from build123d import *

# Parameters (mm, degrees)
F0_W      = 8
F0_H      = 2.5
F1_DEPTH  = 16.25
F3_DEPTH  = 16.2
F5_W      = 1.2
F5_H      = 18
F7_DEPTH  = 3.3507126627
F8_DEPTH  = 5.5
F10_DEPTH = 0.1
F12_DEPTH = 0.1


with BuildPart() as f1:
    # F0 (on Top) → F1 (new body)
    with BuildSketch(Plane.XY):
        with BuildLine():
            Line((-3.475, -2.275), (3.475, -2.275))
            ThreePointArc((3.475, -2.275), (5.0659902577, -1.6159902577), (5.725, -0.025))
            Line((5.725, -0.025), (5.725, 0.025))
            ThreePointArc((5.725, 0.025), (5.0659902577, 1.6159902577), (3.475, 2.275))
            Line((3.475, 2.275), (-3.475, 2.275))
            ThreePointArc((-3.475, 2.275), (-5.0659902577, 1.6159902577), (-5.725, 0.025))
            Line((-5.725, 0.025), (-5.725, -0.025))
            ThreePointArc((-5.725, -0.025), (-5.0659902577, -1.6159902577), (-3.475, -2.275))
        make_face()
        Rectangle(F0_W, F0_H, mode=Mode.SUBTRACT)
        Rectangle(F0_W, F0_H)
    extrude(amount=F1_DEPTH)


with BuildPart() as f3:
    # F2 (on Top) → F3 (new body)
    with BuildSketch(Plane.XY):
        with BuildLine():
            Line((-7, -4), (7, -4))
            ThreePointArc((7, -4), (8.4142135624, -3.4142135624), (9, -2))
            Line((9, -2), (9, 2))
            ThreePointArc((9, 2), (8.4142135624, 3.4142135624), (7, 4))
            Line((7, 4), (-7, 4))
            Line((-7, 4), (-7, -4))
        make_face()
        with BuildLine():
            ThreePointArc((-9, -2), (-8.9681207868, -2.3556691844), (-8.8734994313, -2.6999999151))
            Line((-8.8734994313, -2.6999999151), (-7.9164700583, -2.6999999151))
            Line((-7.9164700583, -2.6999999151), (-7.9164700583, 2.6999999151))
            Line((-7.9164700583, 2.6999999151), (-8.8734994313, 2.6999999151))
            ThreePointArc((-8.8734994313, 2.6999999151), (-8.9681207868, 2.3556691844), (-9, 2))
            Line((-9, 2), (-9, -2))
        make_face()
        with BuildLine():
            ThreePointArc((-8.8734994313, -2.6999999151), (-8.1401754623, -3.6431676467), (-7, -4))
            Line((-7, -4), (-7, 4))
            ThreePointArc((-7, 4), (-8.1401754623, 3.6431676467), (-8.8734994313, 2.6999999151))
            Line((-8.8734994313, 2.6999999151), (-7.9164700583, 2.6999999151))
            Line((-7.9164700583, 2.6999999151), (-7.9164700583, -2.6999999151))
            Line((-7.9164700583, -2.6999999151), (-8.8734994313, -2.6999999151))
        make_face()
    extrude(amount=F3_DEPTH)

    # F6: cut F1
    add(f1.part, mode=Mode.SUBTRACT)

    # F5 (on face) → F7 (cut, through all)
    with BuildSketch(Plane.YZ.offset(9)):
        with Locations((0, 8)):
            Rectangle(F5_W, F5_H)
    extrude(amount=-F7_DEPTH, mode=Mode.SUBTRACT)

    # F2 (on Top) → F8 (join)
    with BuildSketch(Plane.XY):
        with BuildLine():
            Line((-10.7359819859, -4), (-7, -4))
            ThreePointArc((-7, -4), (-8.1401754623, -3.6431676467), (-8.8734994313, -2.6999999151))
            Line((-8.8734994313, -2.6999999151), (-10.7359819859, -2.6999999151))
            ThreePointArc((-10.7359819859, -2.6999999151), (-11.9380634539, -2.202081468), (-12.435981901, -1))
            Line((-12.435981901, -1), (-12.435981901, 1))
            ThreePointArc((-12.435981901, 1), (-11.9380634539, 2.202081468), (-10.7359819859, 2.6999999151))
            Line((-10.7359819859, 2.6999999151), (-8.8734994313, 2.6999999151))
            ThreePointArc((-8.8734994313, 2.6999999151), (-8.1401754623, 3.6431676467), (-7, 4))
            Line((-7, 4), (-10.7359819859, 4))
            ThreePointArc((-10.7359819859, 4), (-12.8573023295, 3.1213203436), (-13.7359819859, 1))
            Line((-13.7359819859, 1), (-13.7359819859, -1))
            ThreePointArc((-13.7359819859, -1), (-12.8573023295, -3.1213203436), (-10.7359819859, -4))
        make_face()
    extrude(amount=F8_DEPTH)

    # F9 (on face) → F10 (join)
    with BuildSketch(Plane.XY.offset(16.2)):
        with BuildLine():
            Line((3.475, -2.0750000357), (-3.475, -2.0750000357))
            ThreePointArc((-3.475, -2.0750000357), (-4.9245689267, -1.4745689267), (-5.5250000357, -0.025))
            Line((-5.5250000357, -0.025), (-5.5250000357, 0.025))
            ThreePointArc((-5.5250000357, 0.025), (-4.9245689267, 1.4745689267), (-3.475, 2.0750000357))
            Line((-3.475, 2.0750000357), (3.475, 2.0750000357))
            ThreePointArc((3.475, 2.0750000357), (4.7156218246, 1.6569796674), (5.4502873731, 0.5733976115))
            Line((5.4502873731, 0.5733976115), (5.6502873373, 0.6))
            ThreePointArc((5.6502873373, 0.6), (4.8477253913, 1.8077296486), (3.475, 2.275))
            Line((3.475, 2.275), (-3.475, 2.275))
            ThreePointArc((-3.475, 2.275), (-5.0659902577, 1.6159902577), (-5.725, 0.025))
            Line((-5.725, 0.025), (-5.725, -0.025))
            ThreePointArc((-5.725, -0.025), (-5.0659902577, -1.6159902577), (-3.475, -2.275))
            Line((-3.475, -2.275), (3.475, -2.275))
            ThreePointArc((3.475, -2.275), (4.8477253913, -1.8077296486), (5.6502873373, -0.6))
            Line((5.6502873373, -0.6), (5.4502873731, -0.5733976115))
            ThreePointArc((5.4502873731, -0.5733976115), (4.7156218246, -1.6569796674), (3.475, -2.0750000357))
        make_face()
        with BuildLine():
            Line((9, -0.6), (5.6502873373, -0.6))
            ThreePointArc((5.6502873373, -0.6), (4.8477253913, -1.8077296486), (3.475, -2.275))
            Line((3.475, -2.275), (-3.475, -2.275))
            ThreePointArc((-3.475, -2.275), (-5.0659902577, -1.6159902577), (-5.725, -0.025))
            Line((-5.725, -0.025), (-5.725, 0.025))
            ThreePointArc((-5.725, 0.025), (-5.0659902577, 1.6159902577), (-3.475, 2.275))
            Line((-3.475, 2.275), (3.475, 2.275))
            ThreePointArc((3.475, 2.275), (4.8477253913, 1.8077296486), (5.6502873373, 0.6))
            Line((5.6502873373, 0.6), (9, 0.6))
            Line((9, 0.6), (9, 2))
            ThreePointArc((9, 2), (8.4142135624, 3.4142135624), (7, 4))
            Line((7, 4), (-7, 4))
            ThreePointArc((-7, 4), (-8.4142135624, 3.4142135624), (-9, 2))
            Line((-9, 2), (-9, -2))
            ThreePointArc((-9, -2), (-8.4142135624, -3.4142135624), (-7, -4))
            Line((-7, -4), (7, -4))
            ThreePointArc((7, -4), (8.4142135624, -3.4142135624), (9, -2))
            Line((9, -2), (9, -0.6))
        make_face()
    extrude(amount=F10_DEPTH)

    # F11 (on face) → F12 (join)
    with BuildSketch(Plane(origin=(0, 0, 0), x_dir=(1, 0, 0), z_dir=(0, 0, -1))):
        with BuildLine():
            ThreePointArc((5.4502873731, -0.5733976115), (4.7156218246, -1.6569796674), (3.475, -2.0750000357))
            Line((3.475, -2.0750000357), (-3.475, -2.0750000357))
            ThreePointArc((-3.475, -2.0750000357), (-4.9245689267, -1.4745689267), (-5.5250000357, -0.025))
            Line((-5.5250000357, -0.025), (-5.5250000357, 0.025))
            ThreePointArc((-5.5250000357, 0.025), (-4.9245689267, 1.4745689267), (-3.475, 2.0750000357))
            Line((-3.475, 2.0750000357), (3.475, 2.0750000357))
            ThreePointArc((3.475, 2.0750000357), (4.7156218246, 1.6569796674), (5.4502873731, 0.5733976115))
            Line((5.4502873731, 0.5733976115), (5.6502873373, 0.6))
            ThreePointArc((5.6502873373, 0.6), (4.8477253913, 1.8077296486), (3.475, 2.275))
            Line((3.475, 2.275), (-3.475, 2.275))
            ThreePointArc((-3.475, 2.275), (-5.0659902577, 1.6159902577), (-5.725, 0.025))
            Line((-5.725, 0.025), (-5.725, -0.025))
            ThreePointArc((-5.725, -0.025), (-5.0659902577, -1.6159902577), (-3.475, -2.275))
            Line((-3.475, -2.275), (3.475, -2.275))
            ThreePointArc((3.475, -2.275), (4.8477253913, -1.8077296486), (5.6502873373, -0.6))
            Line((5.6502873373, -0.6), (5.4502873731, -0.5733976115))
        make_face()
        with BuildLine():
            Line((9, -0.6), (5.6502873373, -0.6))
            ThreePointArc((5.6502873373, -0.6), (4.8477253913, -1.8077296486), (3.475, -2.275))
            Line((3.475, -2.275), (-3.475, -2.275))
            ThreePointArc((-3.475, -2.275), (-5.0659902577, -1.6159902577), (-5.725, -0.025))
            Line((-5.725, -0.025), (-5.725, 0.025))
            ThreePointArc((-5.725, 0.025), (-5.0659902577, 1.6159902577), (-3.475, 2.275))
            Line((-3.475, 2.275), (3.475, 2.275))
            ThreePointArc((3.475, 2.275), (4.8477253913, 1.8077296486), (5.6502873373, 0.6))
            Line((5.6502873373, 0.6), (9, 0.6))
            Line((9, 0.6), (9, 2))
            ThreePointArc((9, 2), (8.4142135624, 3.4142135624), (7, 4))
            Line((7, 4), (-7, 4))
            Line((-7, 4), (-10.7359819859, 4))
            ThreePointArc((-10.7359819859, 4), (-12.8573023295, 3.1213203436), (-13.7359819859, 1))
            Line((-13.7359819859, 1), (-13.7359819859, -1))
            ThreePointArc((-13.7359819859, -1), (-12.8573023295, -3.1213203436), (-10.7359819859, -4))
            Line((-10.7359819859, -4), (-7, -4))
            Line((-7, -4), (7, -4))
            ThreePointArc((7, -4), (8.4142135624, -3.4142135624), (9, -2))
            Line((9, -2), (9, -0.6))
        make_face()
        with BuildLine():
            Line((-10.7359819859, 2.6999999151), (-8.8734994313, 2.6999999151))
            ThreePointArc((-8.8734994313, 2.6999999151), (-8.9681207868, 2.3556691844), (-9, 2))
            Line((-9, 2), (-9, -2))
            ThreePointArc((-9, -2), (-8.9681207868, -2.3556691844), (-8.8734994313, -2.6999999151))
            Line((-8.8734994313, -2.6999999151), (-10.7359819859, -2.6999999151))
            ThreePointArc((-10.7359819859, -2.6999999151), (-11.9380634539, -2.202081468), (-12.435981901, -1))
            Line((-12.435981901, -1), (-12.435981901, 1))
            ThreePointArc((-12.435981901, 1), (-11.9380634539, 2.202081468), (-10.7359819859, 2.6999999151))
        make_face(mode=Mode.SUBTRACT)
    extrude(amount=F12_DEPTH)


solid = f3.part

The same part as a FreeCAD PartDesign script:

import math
import FreeCAD as App
import Part
import Sketcher

V = App.Vector

doc = App.newDocument("Part")
body = doc.addObject("PartDesign::Body", "Body")

sketch1 = body.newObject("Sketcher::SketchObject", "Sketch")
sketch1.AttachmentSupport = (doc.getObject("XY_Plane"), [""])
sketch1.MapMode = "FlatFace"
sketch1.addGeometry([
    Part.LineSegment(V(-3.475, -2.275, 0), V(3.475, -2.275, 0)),
    Part.ArcOfCircle(Part.Circle(V(3.475, -0.025, 0), V(0, 0, 1), 2.25), math.radians(-90), math.radians(0)),
    Part.LineSegment(V(5.725, -0.025, 0), V(5.725, 0.025, 0)),
    Part.ArcOfCircle(Part.Circle(V(3.475, 0.025, 0), V(0, 0, 1), 2.25), math.radians(0), math.radians(90)),
    Part.LineSegment(V(3.475, 2.275, 0), V(-3.475, 2.275, 0)),
    Part.ArcOfCircle(Part.Circle(V(-3.475, 0.025, 0), V(0, 0, 1), 2.25), math.radians(90), math.radians(180)),
    Part.LineSegment(V(-5.725, 0.025, 0), V(-5.725, -0.025, 0)),
    Part.ArcOfCircle(Part.Circle(V(-3.475, -0.025, 0), V(0, 0, 1), 2.25), math.radians(180), math.radians(270)),
], False)
sketch1.addConstraint([
    Sketcher.Constraint("Tangent", 0, 2, 1, 1),
    Sketcher.Constraint("Tangent", 1, 2, 2, 1),
    Sketcher.Constraint("Tangent", 2, 2, 3, 1),
    Sketcher.Constraint("Tangent", 3, 2, 4, 1),
    Sketcher.Constraint("Tangent", 4, 2, 5, 1),
    Sketcher.Constraint("Tangent", 5, 2, 6, 1),
    Sketcher.Constraint("Tangent", 6, 2, 7, 1),
    Sketcher.Constraint("Tangent", 7, 2, 0, 1),
    Sketcher.Constraint("Horizontal", 0),
    Sketcher.Constraint("Vertical", 2),
    Sketcher.Constraint("Horizontal", 4),
    Sketcher.Constraint("Vertical", 6),
    Sketcher.Constraint("Equal", 1, 3),
    Sketcher.Constraint("Equal", 3, 5),
    Sketcher.Constraint("Equal", 5, 7),
    Sketcher.Constraint("Symmetric", 1, 3, 5, 3, -1, 1),
    Sketcher.Constraint("Radius", 1, 2.25),
    Sketcher.Constraint("DistanceX", 0, 1, 0, 2, 6.95),
    Sketcher.Constraint("DistanceY", 2, 1, 2, 2, 0.05),
])
pad1 = body.newObject("PartDesign::Pad", "Pad")
pad1.Profile = sketch1
pad1.Length = 16.25
body2 = doc.addObject("PartDesign::Body", "Body001")

sketch2 = body2.newObject("Sketcher::SketchObject", "Sketch001")
sketch2.AttachmentSupport = (doc.getObject("XY_Plane001"), [""])
sketch2.MapMode = "FlatFace"
sketch2.addGeometry([
    Part.LineSegment(V(-7, -4, 0), V(7, -4, 0)),
    Part.ArcOfCircle(Part.Circle(V(7, -2, 0), V(0, 0, 1), 2), math.radians(-90), math.radians(0)),
    Part.LineSegment(V(9, -2, 0), V(9, 2, 0)),
    Part.ArcOfCircle(Part.Circle(V(7, 2, 0), V(0, 0, 1), 2), math.radians(0), math.radians(90)),
    Part.LineSegment(V(7, 4, 0), V(-7, 4, 0)),
    Part.ArcOfCircle(Part.Circle(V(-7, 2, 0), V(0, 0, 1), 2), math.radians(90), math.radians(159.512687)),
    Part.ArcOfCircle(Part.Circle(V(-7, 2, 0), V(0, 0, 1), 2), math.radians(159.512687), math.radians(180)),
    Part.LineSegment(V(-9, 2, 0), V(-9, -2, 0)),
    Part.ArcOfCircle(Part.Circle(V(-7, -2, 0), V(0, 0, 1), 2), math.radians(180), math.radians(200.487313)),
    Part.ArcOfCircle(Part.Circle(V(-7, -2, 0), V(0, 0, 1), 2), math.radians(-159.512687), math.radians(-90)),
], False)
sketch2.addConstraint([
    Sketcher.Constraint("Tangent", 0, 2, 1, 1),
    Sketcher.Constraint("Tangent", 1, 2, 2, 1),
    Sketcher.Constraint("Tangent", 2, 2, 3, 1),
    Sketcher.Constraint("Tangent", 3, 2, 4, 1),
    Sketcher.Constraint("Tangent", 4, 2, 5, 1),
    Sketcher.Constraint("Tangent", 5, 2, 6, 1),
    Sketcher.Constraint("Tangent", 6, 2, 7, 1),
    Sketcher.Constraint("Tangent", 7, 2, 8, 1),
    Sketcher.Constraint("Tangent", 8, 2, 9, 1),
    Sketcher.Constraint("Tangent", 9, 2, 0, 1),
    Sketcher.Constraint("Horizontal", 0),
    Sketcher.Constraint("Vertical", 2),
    Sketcher.Constraint("Horizontal", 4),
    Sketcher.Constraint("Vertical", 7),
    Sketcher.Constraint("Equal", 1, 3),
    Sketcher.Constraint("Equal", 3, 5),
    Sketcher.Constraint("Equal", 5, 6),
    Sketcher.Constraint("Equal", 6, 8),
    Sketcher.Constraint("Equal", 8, 9),
    Sketcher.Constraint("Symmetric", 1, 3, 5, 3, -1, 1),
    Sketcher.Constraint("Vertical", 5, 2, 8, 2),
    Sketcher.Constraint("Radius", 1, 2.0),
    Sketcher.Constraint("DistanceX", 0, 1, 0, 2, 14.0),
    Sketcher.Constraint("DistanceY", 2, 1, 2, 2, 4.0),
    Sketcher.Constraint("DistanceY", -1, 1, 5, 2, 2.7),
])
pad2 = body2.newObject("PartDesign::Pad", "Pad001")
pad2.Profile = sketch2
pad2.Length = 16.2
doc.recompute()

boolean = body2.newObject("PartDesign::Boolean", "Boolean")
boolean.Type = "Cut"
boolean.addObjects([body])

sketch3 = body2.newObject("Sketcher::SketchObject", "Sketch002")
sketch3.AttachmentSupport = (doc.getObject("YZ_Plane001"), [""])
sketch3.MapMode = "FlatFace"
sketch3.AttachmentOffset = App.Placement(V(0, 0, 9), App.Rotation())
sketch3.addGeometry([
    Part.LineSegment(V(-0.6, 17, 0), V(-0.6, -1, 0)),
    Part.LineSegment(V(-0.6, -1, 0), V(0.6, -1, 0)),
    Part.LineSegment(V(0.6, -1, 0), V(0.6, 17, 0)),
    Part.LineSegment(V(0.6, 17, 0), V(-0.6, 17, 0)),
], False)
sketch3.addConstraint([
    Sketcher.Constraint("Coincident", 0, 2, 1, 1),
    Sketcher.Constraint("Coincident", 1, 2, 2, 1),
    Sketcher.Constraint("Coincident", 2, 2, 3, 1),
    Sketcher.Constraint("Coincident", 3, 2, 0, 1),
    Sketcher.Constraint("Vertical", 0),
    Sketcher.Constraint("Horizontal", 1),
    Sketcher.Constraint("Vertical", 2),
    Sketcher.Constraint("Horizontal", 3),
    Sketcher.Constraint("DistanceY", 0, 2, 0, 1, 18.0),
    Sketcher.Constraint("DistanceX", 1, 1, 1, 2, 1.2),
    Sketcher.Constraint("DistanceY", 0, 2, -1, 1, 1.0),
    Sketcher.Constraint("DistanceX", 0, 2, -1, 1, 0.6),
])
pocket1 = body2.newObject("PartDesign::Pocket", "Pocket")
pocket1.Profile = sketch3
pocket1.Length = 3.350713

sketch4 = body2.newObject("Sketcher::SketchObject", "Sketch003")
sketch4.AttachmentSupport = (doc.getObject("XY_Plane001"), [""])
sketch4.MapMode = "FlatFace"
sketch4.addGeometry([
    Part.LineSegment(V(-10.735982, -4, 0), V(-7, -4, 0)),
    Part.ArcOfCircle(Part.Circle(V(-7, -2, 0), V(0, 0, 1), 2), math.radians(-159.512687), math.radians(-90)),
    Part.LineSegment(V(-8.873499, -2.7, 0), V(-10.735982, -2.7, 0)),
    Part.ArcOfCircle(Part.Circle(V(-10.735982, -1, 0), V(0, 0, 1), 1.7), math.radians(180), math.radians(270)),
    Part.LineSegment(V(-12.435982, -1, 0), V(-12.435982, 1, 0)),
    Part.ArcOfCircle(Part.Circle(V(-10.735982, 1, 0), V(0, 0, 1), 1.7), math.radians(90), math.radians(180)),
    Part.LineSegment(V(-10.735982, 2.7, 0), V(-8.873499, 2.7, 0)),
    Part.ArcOfCircle(Part.Circle(V(-7, 2, 0), V(0, 0, 1), 2), math.radians(90), math.radians(159.512687)),
    Part.LineSegment(V(-7, 4, 0), V(-10.735982, 4, 0)),
    Part.ArcOfCircle(Part.Circle(V(-10.735982, 1, 0), V(0, 0, 1), 3), math.radians(90), math.radians(180)),
    Part.LineSegment(V(-13.735982, 1, 0), V(-13.735982, -1, 0)),
    Part.ArcOfCircle(Part.Circle(V(-10.735982, -1, 0), V(0, 0, 1), 3), math.radians(180), math.radians(270)),
], False)
sketch4.addConstraint([
    Sketcher.Constraint("Tangent", 0, 2, 1, 2),
    Sketcher.Constraint("Coincident", 1, 1, 2, 1),
    Sketcher.Constraint("Tangent", 2, 2, 3, 2),
    Sketcher.Constraint("Tangent", 3, 1, 4, 1),
    Sketcher.Constraint("Tangent", 4, 2, 5, 2),
    Sketcher.Constraint("Tangent", 5, 1, 6, 1),
    Sketcher.Constraint("Coincident", 6, 2, 7, 2),
    Sketcher.Constraint("Tangent", 7, 1, 8, 1),
    Sketcher.Constraint("Tangent", 8, 2, 9, 1),
    Sketcher.Constraint("Tangent", 9, 2, 10, 1),
    Sketcher.Constraint("Tangent", 10, 2, 11, 1),
    Sketcher.Constraint("Tangent", 11, 2, 0, 1),
    Sketcher.Constraint("Horizontal", 0),
    Sketcher.Constraint("Horizontal", 2),
    Sketcher.Constraint("Vertical", 4),
    Sketcher.Constraint("Horizontal", 6),
    Sketcher.Constraint("Horizontal", 8),
    Sketcher.Constraint("Vertical", 10),
    Sketcher.Constraint("Coincident", 9, 3, 5, 3),
    Sketcher.Constraint("Coincident", 11, 3, 3, 3),
    Sketcher.Constraint("Equal", 3, 5),
    Sketcher.Constraint("Equal", 1, 7),
    Sketcher.Constraint("Symmetric", 1, 3, 7, 3, -1),
    Sketcher.Constraint("Radius", 1, 2.0),
    Sketcher.Constraint("Radius", 9, 3.0),
    Sketcher.Constraint("Radius", 3, 1.7),
    Sketcher.Constraint("DistanceY", 4, 1, 4, 2, 2.0),
    Sketcher.Constraint("DistanceX", 1, 3, -1, 1, 7.0),
    Sketcher.Constraint("DistanceX", 0, 1, 0, 2, 3.735982),
])
pad3 = body2.newObject("PartDesign::Pad", "Pad002")
pad3.Profile = sketch4
pad3.Length = 5.5

sketch5 = body2.newObject("Sketcher::SketchObject", "Sketch004")
sketch5.AttachmentSupport = (doc.getObject("XY_Plane001"), [""])
sketch5.MapMode = "FlatFace"
sketch5.AttachmentOffset = App.Placement(V(0, 0, 16.2), App.Rotation())
sketch5.addGeometry([
    Part.LineSegment(V(3.475, -2.075, 0), V(-3.475, -2.075, 0)),
    Part.ArcOfCircle(Part.Circle(V(-3.475, -0.025, 0), V(0, 0, 1), 2.05), math.radians(180), math.radians(270)),
    Part.LineSegment(V(-5.525, -0.025, 0), V(-5.525, 0.025, 0)),
    Part.ArcOfCircle(Part.Circle(V(-3.475, 0.025, 0), V(0, 0, 1), 2.05), math.radians(90), math.radians(180)),
    Part.LineSegment(V(-3.475, 2.075, 0), V(3.475, 2.075, 0)),
    Part.ArcOfCircle(Part.Circle(V(3.475, 0.025, 0), V(0, 0, 1), 2.05), math.radians(15.516212), math.radians(90)),
    Part.LineSegment(V(5.450287, 0.573398, 0), V(5.650287, 0.6, 0)),
    Part.LineSegment(V(5.650287, 0.6, 0), V(9, 0.6, 0)),
    Part.LineSegment(V(9, 0.6, 0), V(9, 2, 0)),
    Part.ArcOfCircle(Part.Circle(V(7, 2, 0), V(0, 0, 1), 2), math.radians(0), math.radians(90)),
    Part.LineSegment(V(7, 4, 0), V(-7, 4, 0)),
    Part.ArcOfCircle(Part.Circle(V(-7, 2, 0), V(0, 0, 1), 2), math.radians(90), math.radians(180)),
    Part.LineSegment(V(-9, 2, 0), V(-9, -2, 0)),
    Part.ArcOfCircle(Part.Circle(V(-7, -2, 0), V(0, 0, 1), 2), math.radians(180), math.radians(270)),
    Part.LineSegment(V(-7, -4, 0), V(7, -4, 0)),
    Part.ArcOfCircle(Part.Circle(V(7, -2, 0), V(0, 0, 1), 2), math.radians(-90), math.radians(0)),
    Part.LineSegment(V(9, -2, 0), V(9, -0.6, 0)),
    Part.LineSegment(V(9, -0.6, 0), V(5.650287, -0.6, 0)),
    Part.LineSegment(V(5.650287, -0.6, 0), V(5.450287, -0.573398, 0)),
    Part.ArcOfCircle(Part.Circle(V(3.475, -0.025, 0), V(0, 0, 1), 2.05), math.radians(-90), math.radians(-15.516212)),
], False)
sketch5.addConstraint([
    Sketcher.Constraint("Tangent", 0, 2, 1, 2),
    Sketcher.Constraint("Tangent", 1, 1, 2, 1),
    Sketcher.Constraint("Tangent", 2, 2, 3, 2),
    Sketcher.Constraint("Tangent", 3, 1, 4, 1),
    Sketcher.Constraint("Tangent", 4, 2, 5, 2),
    Sketcher.Constraint("Coincident", 5, 1, 6, 1),
    Sketcher.Constraint("Coincident", 6, 2, 7, 1),
    Sketcher.Constraint("Coincident", 7, 2, 8, 1),
    Sketcher.Constraint("Tangent", 8, 2, 9, 1),
    Sketcher.Constraint("Tangent", 9, 2, 10, 1),
    Sketcher.Constraint("Tangent", 10, 2, 11, 1),
    Sketcher.Constraint("Tangent", 11, 2, 12, 1),
    Sketcher.Constraint("Tangent", 12, 2, 13, 1),
    Sketcher.Constraint("Tangent", 13, 2, 14, 1),
    Sketcher.Constraint("Tangent", 14, 2, 15, 1),
    Sketcher.Constraint("Tangent", 15, 2, 16, 1),
    Sketcher.Constraint("Coincident", 16, 2, 17, 1),
    Sketcher.Constraint("Coincident", 17, 2, 18, 1),
    Sketcher.Constraint("Coincident", 18, 2, 19, 2),
    Sketcher.Constraint("Tangent", 19, 1, 0, 1),
    Sketcher.Constraint("Horizontal", 0),
    Sketcher.Constraint("Vertical", 2),
    Sketcher.Constraint("Horizontal", 4),
    Sketcher.Constraint("Horizontal", 7),
    Sketcher.Constraint("Vertical", 8),
    Sketcher.Constraint("Horizontal", 10),
    Sketcher.Constraint("Vertical", 12),
    Sketcher.Constraint("Horizontal", 14),
    Sketcher.Constraint("Vertical", 16),
    Sketcher.Constraint("Horizontal", 17),
    Sketcher.Constraint("Equal", 1, 3),
    Sketcher.Constraint("Equal", 3, 5),
    Sketcher.Constraint("Equal", 9, 11),
    Sketcher.Constraint("Equal", 11, 13),
    Sketcher.Constraint("Equal", 13, 15),
    Sketcher.Constraint("Equal", 5, 19),
    Sketcher.Constraint("Symmetric", 1, 3, 5, 3, -1, 1),
    Sketcher.Constraint("Symmetric", 9, 3, 13, 3, -1, 1),
    Sketcher.Constraint("Symmetric", 7, 2, 16, 2, -1),
    Sketcher.Constraint("Symmetric", 5, 1, 18, 2, -1),
    Sketcher.Constraint("Vertical", 6, 2, 17, 2),
    Sketcher.Constraint("Radius", 9, 2.0),
    Sketcher.Constraint("DistanceX", 10, 2, 10, 1, 14.0),
    Sketcher.Constraint("DistanceY", 12, 2, 12, 1, 4.0),
    Sketcher.Constraint("Radius", 1, 2.05),
    Sketcher.Constraint("DistanceY", 8, 1, 8, 2, 1.4),
    Sketcher.Constraint("DistanceX", 0, 2, 0, 1, 6.95),
    Sketcher.Constraint("DistanceY", 2, 1, 2, 2, 0.05),
    Sketcher.Constraint("DistanceX", 5, 1, 6, 2, 0.2),
    Sketcher.Constraint("Distance", 6, 0.201761),
])
pad4 = body2.newObject("PartDesign::Pad", "Pad003")
pad4.Profile = sketch5
pad4.Length = 0.1

sketch6 = body2.newObject("Sketcher::SketchObject", "Sketch005")
sketch6.AttachmentSupport = (doc.getObject("XY_Plane001"), [""])
sketch6.MapMode = "FlatFace"
sketch6.addGeometry([
    Part.ArcOfCircle(Part.Circle(V(3.475, 0.025, 0), V(0, 0, 1), 2.05), math.radians(15.516212), math.radians(90)),
    Part.LineSegment(V(3.475, 2.075, 0), V(-3.475, 2.075, 0)),
    Part.ArcOfCircle(Part.Circle(V(-3.475, 0.025, 0), V(0, 0, 1), 2.05), math.radians(90), math.radians(180)),
    Part.LineSegment(V(-5.525, 0.025, 0), V(-5.525, -0.025, 0)),
    Part.ArcOfCircle(Part.Circle(V(-3.475, -0.025, 0), V(0, 0, 1), 2.05), math.radians(180), math.radians(270)),
    Part.LineSegment(V(-3.475, -2.075, 0), V(3.475, -2.075, 0)),
    Part.ArcOfCircle(Part.Circle(V(3.475, -0.025, 0), V(0, 0, 1), 2.05), math.radians(-90), math.radians(-15.516212)),
    Part.LineSegment(V(5.450287, -0.573398, 0), V(5.650287, -0.6, 0)),
    Part.LineSegment(V(5.650287, -0.6, 0), V(9, -0.6, 0)),
    Part.LineSegment(V(9, -0.6, 0), V(9, -2, 0)),
    Part.ArcOfCircle(Part.Circle(V(7, -2, 0), V(0, 0, 1), 2), math.radians(-90), math.radians(0)),
    Part.LineSegment(V(7, -4, 0), V(-10.735982, -4, 0)),
    Part.ArcOfCircle(Part.Circle(V(-10.735982, -1, 0), V(0, 0, 1), 3), math.radians(180), math.radians(270)),
    Part.LineSegment(V(-13.735982, -1, 0), V(-13.735982, 1, 0)),
    Part.ArcOfCircle(Part.Circle(V(-10.735982, 1, 0), V(0, 0, 1), 3), math.radians(90), math.radians(180)),
    Part.LineSegment(V(-10.735982, 4, 0), V(7, 4, 0)),
    Part.ArcOfCircle(Part.Circle(V(7, 2, 0), V(0, 0, 1), 2), math.radians(0), math.radians(90)),
    Part.LineSegment(V(9, 2, 0), V(9, 0.6, 0)),
    Part.LineSegment(V(9, 0.6, 0), V(5.650287, 0.6, 0)),
    Part.LineSegment(V(5.650287, 0.6, 0), V(5.450287, 0.573398, 0)),
    Part.ArcOfCircle(Part.Circle(V(-10.735982, -1, 0), V(0, 0, 1), 1.7), math.radians(180), math.radians(270)),
    Part.LineSegment(V(-10.735982, -2.7, 0), V(-8.873499, -2.7, 0)),
    Part.ArcOfCircle(Part.Circle(V(-7, -2, 0), V(0, 0, 1), 2), math.radians(180), math.radians(200.487313)),
    Part.LineSegment(V(-9, -2, 0), V(-9, 2, 0)),
    Part.ArcOfCircle(Part.Circle(V(-7, 2, 0), V(0, 0, 1), 2), math.radians(159.512687), math.radians(180)),
    Part.LineSegment(V(-8.873499, 2.7, 0), V(-10.735982, 2.7, 0)),
    Part.ArcOfCircle(Part.Circle(V(-10.735982, 1, 0), V(0, 0, 1), 1.7), math.radians(90), math.radians(180)),
    Part.LineSegment(V(-12.435982, 1, 0), V(-12.435982, -1, 0)),
], False)
sketch6.addConstraint([
    Sketcher.Constraint("Tangent", 0, 2, 1, 1),
    Sketcher.Constraint("Tangent", 1, 2, 2, 1),
    Sketcher.Constraint("Tangent", 2, 2, 3, 1),
    Sketcher.Constraint("Tangent", 3, 2, 4, 1),
    Sketcher.Constraint("Tangent", 4, 2, 5, 1),
    Sketcher.Constraint("Tangent", 5, 2, 6, 1),
    Sketcher.Constraint("Coincident", 6, 2, 7, 1),
    Sketcher.Constraint("Coincident", 7, 2, 8, 1),
    Sketcher.Constraint("Coincident", 8, 2, 9, 1),
    Sketcher.Constraint("Tangent", 9, 2, 10, 2),
    Sketcher.Constraint("Tangent", 10, 1, 11, 1),
    Sketcher.Constraint("Tangent", 11, 2, 12, 2),
    Sketcher.Constraint("Tangent", 12, 1, 13, 1),
    Sketcher.Constraint("Tangent", 13, 2, 14, 2),
    Sketcher.Constraint("Tangent", 14, 1, 15, 1),
    Sketcher.Constraint("Tangent", 15, 2, 16, 2),
    Sketcher.Constraint("Tangent", 16, 1, 17, 1),
    Sketcher.Constraint("Coincident", 17, 2, 18, 1),
    Sketcher.Constraint("Coincident", 18, 2, 19, 1),
    Sketcher.Constraint("Coincident", 19, 2, 0, 1),
    Sketcher.Constraint("Tangent", 20, 2, 21, 1),
    Sketcher.Constraint("Coincident", 21, 2, 22, 2),
    Sketcher.Constraint("Tangent", 22, 1, 23, 1),
    Sketcher.Constraint("Tangent", 23, 2, 24, 2),
    Sketcher.Constraint("Coincident", 24, 1, 25, 1),
    Sketcher.Constraint("Tangent", 25, 2, 26, 1),
    Sketcher.Constraint("Tangent", 26, 2, 27, 1),
    Sketcher.Constraint("Tangent", 27, 2, 20, 1),
    Sketcher.Constraint("Horizontal", 1),
    Sketcher.Constraint("Vertical", 3),
    Sketcher.Constraint("Horizontal", 5),
    Sketcher.Constraint("Horizontal", 8),
    Sketcher.Constraint("Vertical", 9),
    Sketcher.Constraint("Horizontal", 11),
    Sketcher.Constraint("Vertical", 13),
    Sketcher.Constraint("Horizontal", 15),
    Sketcher.Constraint("Vertical", 17),
    Sketcher.Constraint("Horizontal", 18),
    Sketcher.Constraint("Horizontal", 21),
    Sketcher.Constraint("Vertical", 23),
    Sketcher.Constraint("Horizontal", 25),
    Sketcher.Constraint("Vertical", 27),
    Sketcher.Constraint("Coincident", 20, 3, 12, 3),
    Sketcher.Constraint("Coincident", 26, 3, 14, 3),
    Sketcher.Constraint("Equal", 0, 2),
    Sketcher.Constraint("Equal", 2, 4),
    Sketcher.Constraint("Equal", 4, 6),
    Sketcher.Constraint("Equal", 12, 14),
    Sketcher.Constraint("Equal", 10, 16),
    Sketcher.Constraint("Equal", 16, 22),
    Sketcher.Constraint("Equal", 22, 24),
    Sketcher.Constraint("Symmetric", 0, 3, 4, 3, -1, 1),
    Sketcher.Constraint("Symmetric", 16, 3, 22, 3, -1, 1),
    Sketcher.Constraint("Symmetric", 10, 3, 24, 3, -1, 1),
    Sketcher.Constraint("Symmetric", 7, 2, 18, 2, -1),
    Sketcher.Constraint("Symmetric", 6, 2, 19, 2, -1),
    Sketcher.Constraint("Horizontal", 10, 3, 22, 3),
    Sketcher.Constraint("Radius", 10, 2.0),
    Sketcher.Constraint("Radius", 12, 3.0),
    Sketcher.Constraint("Radius", 20, 1.7),
    Sketcher.Constraint("DistanceY", 13, 1, 13, 2, 2.0),
    Sketcher.Constraint("Radius", 0, 2.05),
    Sketcher.Constraint("DistanceY", 9, 2, 9, 1, 1.4),
    Sketcher.Constraint("DistanceX", -1, 1, 10, 3, 7.0),
    Sketcher.Constraint("DistanceX", 1, 2, 1, 1, 6.95),
    Sketcher.Constraint("DistanceY", 3, 2, 3, 1, 0.05),
    Sketcher.Constraint("DistanceX", 6, 2, 7, 2, 0.2),
    Sketcher.Constraint("DistanceX", 11, 2, 11, 1, 17.735982),
    Sketcher.Constraint("Distance", 7, 0.201761),
])
pad5 = body2.newObject("PartDesign::Pad", "Pad004")
pad5.Profile = sketch6
pad5.Length = 0.1
pad5.Reversed = True

doc.recompute()
